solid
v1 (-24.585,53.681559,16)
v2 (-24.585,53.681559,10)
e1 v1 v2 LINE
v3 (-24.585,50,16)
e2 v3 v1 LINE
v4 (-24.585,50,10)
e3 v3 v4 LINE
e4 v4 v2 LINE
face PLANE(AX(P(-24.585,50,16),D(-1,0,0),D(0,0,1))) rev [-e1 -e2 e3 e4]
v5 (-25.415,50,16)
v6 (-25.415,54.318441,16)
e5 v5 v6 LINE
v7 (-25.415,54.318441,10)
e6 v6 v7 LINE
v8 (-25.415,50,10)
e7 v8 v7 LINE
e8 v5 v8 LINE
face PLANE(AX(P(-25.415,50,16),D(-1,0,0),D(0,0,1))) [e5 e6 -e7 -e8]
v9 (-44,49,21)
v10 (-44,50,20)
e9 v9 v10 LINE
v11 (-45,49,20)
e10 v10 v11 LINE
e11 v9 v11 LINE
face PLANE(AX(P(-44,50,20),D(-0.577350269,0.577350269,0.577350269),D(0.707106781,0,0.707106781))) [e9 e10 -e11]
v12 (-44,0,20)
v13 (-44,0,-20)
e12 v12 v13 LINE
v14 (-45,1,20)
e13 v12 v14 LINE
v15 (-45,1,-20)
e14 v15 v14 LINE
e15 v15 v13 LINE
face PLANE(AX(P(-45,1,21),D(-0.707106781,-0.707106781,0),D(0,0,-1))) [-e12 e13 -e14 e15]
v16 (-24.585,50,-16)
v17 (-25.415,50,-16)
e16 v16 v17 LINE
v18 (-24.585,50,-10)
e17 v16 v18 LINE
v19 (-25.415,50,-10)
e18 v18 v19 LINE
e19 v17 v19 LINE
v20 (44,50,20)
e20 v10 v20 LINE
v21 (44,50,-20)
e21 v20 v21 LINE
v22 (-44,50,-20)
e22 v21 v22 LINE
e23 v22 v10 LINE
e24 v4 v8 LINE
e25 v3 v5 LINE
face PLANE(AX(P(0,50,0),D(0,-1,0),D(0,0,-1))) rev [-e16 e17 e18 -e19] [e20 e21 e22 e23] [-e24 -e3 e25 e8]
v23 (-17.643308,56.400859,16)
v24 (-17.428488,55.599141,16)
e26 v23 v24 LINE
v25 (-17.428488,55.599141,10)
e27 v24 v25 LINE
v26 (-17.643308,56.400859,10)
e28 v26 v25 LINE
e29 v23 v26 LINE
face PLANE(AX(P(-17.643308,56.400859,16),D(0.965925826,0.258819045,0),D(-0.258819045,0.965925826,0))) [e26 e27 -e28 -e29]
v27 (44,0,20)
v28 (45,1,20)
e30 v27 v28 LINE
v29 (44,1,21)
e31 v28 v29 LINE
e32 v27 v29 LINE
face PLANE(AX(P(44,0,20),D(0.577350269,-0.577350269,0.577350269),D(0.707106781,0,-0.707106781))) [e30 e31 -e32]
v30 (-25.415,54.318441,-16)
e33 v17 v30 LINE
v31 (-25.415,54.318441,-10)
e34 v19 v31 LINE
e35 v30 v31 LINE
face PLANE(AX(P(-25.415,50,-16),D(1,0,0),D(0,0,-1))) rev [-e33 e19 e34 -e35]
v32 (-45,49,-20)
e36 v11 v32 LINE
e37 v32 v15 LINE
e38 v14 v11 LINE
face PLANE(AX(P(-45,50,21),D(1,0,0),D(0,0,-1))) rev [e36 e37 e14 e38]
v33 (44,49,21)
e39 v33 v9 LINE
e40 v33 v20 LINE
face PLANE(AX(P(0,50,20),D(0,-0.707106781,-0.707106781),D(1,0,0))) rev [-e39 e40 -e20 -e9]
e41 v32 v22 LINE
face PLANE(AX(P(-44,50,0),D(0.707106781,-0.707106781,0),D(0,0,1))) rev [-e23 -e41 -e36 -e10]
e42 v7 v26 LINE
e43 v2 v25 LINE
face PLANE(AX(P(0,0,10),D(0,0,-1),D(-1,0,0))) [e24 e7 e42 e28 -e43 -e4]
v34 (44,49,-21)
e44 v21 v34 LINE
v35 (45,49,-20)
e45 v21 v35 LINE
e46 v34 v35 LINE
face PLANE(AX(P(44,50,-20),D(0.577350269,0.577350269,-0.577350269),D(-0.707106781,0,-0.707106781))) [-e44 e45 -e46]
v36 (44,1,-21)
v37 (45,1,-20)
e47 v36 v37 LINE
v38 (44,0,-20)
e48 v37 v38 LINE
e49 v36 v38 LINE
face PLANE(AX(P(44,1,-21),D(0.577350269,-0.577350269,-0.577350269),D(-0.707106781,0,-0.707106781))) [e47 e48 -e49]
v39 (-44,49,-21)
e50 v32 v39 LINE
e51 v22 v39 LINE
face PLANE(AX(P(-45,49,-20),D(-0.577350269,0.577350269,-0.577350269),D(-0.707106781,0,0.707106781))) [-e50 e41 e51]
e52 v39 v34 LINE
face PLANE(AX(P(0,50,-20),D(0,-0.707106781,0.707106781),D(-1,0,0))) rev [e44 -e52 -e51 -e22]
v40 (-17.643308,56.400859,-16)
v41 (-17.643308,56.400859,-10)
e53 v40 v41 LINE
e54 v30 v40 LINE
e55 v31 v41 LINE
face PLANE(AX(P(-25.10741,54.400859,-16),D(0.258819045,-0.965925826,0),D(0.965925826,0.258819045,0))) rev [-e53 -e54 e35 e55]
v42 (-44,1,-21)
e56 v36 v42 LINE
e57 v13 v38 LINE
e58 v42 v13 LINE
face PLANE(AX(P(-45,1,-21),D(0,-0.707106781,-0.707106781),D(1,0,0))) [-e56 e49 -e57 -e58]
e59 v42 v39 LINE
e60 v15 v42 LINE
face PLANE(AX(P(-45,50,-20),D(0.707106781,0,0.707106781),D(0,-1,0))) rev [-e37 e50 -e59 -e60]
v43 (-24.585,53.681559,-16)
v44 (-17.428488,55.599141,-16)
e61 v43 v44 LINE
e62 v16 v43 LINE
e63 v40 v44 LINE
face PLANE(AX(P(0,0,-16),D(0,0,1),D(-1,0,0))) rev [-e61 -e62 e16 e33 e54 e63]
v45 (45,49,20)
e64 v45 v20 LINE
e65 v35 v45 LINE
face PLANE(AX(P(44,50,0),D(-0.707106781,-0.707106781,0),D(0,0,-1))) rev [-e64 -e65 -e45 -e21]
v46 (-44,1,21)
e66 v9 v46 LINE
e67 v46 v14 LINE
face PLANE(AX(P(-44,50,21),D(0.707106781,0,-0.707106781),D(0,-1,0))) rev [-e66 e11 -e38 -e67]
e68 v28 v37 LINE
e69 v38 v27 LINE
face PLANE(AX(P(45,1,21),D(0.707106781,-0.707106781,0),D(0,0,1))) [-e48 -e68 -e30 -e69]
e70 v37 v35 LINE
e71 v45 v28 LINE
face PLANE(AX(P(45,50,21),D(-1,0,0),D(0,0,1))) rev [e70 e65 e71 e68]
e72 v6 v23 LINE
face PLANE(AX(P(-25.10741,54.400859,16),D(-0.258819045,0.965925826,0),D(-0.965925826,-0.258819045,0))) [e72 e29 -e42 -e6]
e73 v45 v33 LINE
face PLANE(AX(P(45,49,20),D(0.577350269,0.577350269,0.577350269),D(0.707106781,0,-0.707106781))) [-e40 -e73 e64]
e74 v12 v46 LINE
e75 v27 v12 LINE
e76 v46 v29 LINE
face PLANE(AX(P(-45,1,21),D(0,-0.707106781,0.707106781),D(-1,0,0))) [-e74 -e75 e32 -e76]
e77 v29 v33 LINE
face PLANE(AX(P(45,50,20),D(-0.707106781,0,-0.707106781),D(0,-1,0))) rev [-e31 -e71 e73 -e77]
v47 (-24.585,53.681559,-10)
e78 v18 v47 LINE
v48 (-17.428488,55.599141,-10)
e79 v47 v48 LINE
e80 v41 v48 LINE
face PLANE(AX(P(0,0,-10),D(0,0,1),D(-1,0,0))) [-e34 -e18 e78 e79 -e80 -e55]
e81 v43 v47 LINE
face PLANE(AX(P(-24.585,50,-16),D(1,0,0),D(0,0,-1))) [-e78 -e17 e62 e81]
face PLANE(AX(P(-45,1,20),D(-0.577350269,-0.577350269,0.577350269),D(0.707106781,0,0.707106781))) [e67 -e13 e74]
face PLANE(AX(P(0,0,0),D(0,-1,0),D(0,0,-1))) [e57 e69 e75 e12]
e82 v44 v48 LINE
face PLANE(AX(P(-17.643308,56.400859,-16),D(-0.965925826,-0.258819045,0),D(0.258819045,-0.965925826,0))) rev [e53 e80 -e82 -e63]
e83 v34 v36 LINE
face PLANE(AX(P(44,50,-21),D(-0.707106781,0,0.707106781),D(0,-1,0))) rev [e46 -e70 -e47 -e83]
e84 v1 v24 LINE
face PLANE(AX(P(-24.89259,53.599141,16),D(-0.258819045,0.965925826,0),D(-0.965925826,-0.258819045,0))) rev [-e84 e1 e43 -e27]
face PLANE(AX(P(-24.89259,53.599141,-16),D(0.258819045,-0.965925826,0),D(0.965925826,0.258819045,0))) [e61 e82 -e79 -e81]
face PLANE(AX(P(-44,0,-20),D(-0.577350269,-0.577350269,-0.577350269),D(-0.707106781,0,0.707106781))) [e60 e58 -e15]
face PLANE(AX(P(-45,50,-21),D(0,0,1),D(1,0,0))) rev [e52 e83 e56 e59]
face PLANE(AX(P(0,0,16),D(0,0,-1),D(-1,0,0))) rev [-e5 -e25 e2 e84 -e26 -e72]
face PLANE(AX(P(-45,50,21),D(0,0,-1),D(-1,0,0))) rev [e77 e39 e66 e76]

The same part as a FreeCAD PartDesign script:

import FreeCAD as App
import Part
import Sketcher

V = App.Vector
Q = App.Units.Quantity

doc = App.newDocument("Part")
body = doc.addObject("PartDesign::Body", "Body")

sketch1 = doc.addObject("Sketcher::SketchObject", "Sketch")
body.addObject(sketch1)
sketch1.AttachmentSupport = (doc.XZ_Plane, [""])
sketch1.MapMode = "FlatFace"
sketch1.addGeometry([
    Part.LineSegment(V(-45, -21, 0), V(-45, 21, 0)),
    Part.LineSegment(V(-45, 21, 0), V(45, 21, 0)),
    Part.LineSegment(V(45, 21, 0), V(45, -21, 0)),
    Part.LineSegment(V(45, -21, 0), V(-45, -21, 0)),
], False)
sketch1.addConstraint([
    Sketcher.Constraint("Coincident", 0, 2, 1, 1),
    Sketcher.Constraint("Coincident", 1, 2, 2, 1),
    Sketcher.Constraint("Coincident", 2, 2, 3, 1),
    Sketcher.Constraint("Coincident", 3, 2, 0, 1),
    Sketcher.Constraint("Vertical", 0),
    Sketcher.Constraint("Horizontal", 1),
    Sketcher.Constraint("Vertical", 2),
    Sketcher.Constraint("Horizontal", 3),
    Sketcher.Constraint("Symmetric", 0, 2, 2, 2, -1, 1),
    Sketcher.Constraint("DistanceX", 1, 1, 1, 2, 90.0),
    Sketcher.Constraint("DistanceY", 0, 1, 0, 2, 42.0),
])
pad1 = doc.addObject("PartDesign::Pad", "Pad")
body.addObject(pad1)
pad1.Profile = sketch1
pad1.Length = 50
pad1.Reversed = True
doc.recompute()

chamfer = doc.addObject("PartDesign::Chamfer", "Chamfer")
body.addObject(chamfer)
chamfer.Base = (pad1, ["Edge1"])
chamfer.UseAllEdges = True
chamfer.Size = 1

sketch2 = doc.addObject("Sketcher::SketchObject", "Sketch001")
body.addObject(sketch2)
sketch2.AttachmentSupport = (doc.XY_Plane, [""])
sketch2.MapMode = "FlatFace"
sketch2.AttachmentOffset = App.Placement(V(0, 0, 13), App.Rotation())
sketch2.addGeometry([
    Part.LineSegment(V(-24.585, 50, 0), V(-24.585, 53.681559, 0)),
    Part.LineSegment(V(-24.585, 53.681559, 0), V(-17.428488, 55.599141, 0)),
    Part.LineSegment(V(-17.428488, 55.599141, 0), V(-17.643308, 56.400859, 0)),
    Part.LineSegment(V(-17.643308, 56.400859, 0), V(-25.415, 54.318441, 0)),
    Part.LineSegment(V(-25.415, 54.318441, 0), V(-25.415, 50, 0)),
    Part.LineSegment(V(-25.415, 50, 0), V(-24.585, 50, 0)),
], False)
sketch2.addConstraint([
    Sketcher.Constraint("Coincident", 0, 2, 1, 1),
    Sketcher.Constraint("Coincident", 1, 2, 2, 1),
    Sketcher.Constraint("Coincident", 2, 2, 3, 1),
    Sketcher.Constraint("Coincident", 3, 2, 4, 1),
    Sketcher.Constraint("Coincident", 4, 2, 5, 1),
    Sketcher.Constraint("Coincident", 5, 2, 0, 1),
    Sketcher.Constraint("Vertical", 0),
    Sketcher.Constraint("Vertical", 4),
    Sketcher.Constraint("Horizontal", 5),
    Sketcher.Constraint("Perpendicular", 1, 2),
    Sketcher.Constraint("Perpendicular", 2, 3),
    Sketcher.Constraint("Angle", 1, Q("15 deg")),
    Sketcher.Constraint("DistanceY", -1, 1, 4, 2, 50.0),
    Sketcher.Constraint("DistanceX", 5, 1, 5, 2, 0.83),
    Sketcher.Constraint("Distance", 2, 0.83),
    Sketcher.Constraint("DistanceX", 0, 2, -1, 1, 24.585),
    Sketcher.Constraint("DistanceY", 0, 1, 0, 2, 3.681559),
    Sketcher.Constraint("DistanceY", 0, 2, 2, 2, 2.7193),
])
pad2 = doc.addObject("PartDesign::Pad", "Pad001")
body.addObject(pad2)
pad2.Profile = sketch2
pad2.Length = 6
pad2.Midplane = True
doc.recompute()

mirrored = doc.addObject("PartDesign::Mirrored", "Mirrored")
body.addObject(mirrored)
mirrored.Originals = [pad2]
mirrored.MirrorPlane = (doc.XY_Plane, [""])
body.Tip = mirrored

doc.recompute()
